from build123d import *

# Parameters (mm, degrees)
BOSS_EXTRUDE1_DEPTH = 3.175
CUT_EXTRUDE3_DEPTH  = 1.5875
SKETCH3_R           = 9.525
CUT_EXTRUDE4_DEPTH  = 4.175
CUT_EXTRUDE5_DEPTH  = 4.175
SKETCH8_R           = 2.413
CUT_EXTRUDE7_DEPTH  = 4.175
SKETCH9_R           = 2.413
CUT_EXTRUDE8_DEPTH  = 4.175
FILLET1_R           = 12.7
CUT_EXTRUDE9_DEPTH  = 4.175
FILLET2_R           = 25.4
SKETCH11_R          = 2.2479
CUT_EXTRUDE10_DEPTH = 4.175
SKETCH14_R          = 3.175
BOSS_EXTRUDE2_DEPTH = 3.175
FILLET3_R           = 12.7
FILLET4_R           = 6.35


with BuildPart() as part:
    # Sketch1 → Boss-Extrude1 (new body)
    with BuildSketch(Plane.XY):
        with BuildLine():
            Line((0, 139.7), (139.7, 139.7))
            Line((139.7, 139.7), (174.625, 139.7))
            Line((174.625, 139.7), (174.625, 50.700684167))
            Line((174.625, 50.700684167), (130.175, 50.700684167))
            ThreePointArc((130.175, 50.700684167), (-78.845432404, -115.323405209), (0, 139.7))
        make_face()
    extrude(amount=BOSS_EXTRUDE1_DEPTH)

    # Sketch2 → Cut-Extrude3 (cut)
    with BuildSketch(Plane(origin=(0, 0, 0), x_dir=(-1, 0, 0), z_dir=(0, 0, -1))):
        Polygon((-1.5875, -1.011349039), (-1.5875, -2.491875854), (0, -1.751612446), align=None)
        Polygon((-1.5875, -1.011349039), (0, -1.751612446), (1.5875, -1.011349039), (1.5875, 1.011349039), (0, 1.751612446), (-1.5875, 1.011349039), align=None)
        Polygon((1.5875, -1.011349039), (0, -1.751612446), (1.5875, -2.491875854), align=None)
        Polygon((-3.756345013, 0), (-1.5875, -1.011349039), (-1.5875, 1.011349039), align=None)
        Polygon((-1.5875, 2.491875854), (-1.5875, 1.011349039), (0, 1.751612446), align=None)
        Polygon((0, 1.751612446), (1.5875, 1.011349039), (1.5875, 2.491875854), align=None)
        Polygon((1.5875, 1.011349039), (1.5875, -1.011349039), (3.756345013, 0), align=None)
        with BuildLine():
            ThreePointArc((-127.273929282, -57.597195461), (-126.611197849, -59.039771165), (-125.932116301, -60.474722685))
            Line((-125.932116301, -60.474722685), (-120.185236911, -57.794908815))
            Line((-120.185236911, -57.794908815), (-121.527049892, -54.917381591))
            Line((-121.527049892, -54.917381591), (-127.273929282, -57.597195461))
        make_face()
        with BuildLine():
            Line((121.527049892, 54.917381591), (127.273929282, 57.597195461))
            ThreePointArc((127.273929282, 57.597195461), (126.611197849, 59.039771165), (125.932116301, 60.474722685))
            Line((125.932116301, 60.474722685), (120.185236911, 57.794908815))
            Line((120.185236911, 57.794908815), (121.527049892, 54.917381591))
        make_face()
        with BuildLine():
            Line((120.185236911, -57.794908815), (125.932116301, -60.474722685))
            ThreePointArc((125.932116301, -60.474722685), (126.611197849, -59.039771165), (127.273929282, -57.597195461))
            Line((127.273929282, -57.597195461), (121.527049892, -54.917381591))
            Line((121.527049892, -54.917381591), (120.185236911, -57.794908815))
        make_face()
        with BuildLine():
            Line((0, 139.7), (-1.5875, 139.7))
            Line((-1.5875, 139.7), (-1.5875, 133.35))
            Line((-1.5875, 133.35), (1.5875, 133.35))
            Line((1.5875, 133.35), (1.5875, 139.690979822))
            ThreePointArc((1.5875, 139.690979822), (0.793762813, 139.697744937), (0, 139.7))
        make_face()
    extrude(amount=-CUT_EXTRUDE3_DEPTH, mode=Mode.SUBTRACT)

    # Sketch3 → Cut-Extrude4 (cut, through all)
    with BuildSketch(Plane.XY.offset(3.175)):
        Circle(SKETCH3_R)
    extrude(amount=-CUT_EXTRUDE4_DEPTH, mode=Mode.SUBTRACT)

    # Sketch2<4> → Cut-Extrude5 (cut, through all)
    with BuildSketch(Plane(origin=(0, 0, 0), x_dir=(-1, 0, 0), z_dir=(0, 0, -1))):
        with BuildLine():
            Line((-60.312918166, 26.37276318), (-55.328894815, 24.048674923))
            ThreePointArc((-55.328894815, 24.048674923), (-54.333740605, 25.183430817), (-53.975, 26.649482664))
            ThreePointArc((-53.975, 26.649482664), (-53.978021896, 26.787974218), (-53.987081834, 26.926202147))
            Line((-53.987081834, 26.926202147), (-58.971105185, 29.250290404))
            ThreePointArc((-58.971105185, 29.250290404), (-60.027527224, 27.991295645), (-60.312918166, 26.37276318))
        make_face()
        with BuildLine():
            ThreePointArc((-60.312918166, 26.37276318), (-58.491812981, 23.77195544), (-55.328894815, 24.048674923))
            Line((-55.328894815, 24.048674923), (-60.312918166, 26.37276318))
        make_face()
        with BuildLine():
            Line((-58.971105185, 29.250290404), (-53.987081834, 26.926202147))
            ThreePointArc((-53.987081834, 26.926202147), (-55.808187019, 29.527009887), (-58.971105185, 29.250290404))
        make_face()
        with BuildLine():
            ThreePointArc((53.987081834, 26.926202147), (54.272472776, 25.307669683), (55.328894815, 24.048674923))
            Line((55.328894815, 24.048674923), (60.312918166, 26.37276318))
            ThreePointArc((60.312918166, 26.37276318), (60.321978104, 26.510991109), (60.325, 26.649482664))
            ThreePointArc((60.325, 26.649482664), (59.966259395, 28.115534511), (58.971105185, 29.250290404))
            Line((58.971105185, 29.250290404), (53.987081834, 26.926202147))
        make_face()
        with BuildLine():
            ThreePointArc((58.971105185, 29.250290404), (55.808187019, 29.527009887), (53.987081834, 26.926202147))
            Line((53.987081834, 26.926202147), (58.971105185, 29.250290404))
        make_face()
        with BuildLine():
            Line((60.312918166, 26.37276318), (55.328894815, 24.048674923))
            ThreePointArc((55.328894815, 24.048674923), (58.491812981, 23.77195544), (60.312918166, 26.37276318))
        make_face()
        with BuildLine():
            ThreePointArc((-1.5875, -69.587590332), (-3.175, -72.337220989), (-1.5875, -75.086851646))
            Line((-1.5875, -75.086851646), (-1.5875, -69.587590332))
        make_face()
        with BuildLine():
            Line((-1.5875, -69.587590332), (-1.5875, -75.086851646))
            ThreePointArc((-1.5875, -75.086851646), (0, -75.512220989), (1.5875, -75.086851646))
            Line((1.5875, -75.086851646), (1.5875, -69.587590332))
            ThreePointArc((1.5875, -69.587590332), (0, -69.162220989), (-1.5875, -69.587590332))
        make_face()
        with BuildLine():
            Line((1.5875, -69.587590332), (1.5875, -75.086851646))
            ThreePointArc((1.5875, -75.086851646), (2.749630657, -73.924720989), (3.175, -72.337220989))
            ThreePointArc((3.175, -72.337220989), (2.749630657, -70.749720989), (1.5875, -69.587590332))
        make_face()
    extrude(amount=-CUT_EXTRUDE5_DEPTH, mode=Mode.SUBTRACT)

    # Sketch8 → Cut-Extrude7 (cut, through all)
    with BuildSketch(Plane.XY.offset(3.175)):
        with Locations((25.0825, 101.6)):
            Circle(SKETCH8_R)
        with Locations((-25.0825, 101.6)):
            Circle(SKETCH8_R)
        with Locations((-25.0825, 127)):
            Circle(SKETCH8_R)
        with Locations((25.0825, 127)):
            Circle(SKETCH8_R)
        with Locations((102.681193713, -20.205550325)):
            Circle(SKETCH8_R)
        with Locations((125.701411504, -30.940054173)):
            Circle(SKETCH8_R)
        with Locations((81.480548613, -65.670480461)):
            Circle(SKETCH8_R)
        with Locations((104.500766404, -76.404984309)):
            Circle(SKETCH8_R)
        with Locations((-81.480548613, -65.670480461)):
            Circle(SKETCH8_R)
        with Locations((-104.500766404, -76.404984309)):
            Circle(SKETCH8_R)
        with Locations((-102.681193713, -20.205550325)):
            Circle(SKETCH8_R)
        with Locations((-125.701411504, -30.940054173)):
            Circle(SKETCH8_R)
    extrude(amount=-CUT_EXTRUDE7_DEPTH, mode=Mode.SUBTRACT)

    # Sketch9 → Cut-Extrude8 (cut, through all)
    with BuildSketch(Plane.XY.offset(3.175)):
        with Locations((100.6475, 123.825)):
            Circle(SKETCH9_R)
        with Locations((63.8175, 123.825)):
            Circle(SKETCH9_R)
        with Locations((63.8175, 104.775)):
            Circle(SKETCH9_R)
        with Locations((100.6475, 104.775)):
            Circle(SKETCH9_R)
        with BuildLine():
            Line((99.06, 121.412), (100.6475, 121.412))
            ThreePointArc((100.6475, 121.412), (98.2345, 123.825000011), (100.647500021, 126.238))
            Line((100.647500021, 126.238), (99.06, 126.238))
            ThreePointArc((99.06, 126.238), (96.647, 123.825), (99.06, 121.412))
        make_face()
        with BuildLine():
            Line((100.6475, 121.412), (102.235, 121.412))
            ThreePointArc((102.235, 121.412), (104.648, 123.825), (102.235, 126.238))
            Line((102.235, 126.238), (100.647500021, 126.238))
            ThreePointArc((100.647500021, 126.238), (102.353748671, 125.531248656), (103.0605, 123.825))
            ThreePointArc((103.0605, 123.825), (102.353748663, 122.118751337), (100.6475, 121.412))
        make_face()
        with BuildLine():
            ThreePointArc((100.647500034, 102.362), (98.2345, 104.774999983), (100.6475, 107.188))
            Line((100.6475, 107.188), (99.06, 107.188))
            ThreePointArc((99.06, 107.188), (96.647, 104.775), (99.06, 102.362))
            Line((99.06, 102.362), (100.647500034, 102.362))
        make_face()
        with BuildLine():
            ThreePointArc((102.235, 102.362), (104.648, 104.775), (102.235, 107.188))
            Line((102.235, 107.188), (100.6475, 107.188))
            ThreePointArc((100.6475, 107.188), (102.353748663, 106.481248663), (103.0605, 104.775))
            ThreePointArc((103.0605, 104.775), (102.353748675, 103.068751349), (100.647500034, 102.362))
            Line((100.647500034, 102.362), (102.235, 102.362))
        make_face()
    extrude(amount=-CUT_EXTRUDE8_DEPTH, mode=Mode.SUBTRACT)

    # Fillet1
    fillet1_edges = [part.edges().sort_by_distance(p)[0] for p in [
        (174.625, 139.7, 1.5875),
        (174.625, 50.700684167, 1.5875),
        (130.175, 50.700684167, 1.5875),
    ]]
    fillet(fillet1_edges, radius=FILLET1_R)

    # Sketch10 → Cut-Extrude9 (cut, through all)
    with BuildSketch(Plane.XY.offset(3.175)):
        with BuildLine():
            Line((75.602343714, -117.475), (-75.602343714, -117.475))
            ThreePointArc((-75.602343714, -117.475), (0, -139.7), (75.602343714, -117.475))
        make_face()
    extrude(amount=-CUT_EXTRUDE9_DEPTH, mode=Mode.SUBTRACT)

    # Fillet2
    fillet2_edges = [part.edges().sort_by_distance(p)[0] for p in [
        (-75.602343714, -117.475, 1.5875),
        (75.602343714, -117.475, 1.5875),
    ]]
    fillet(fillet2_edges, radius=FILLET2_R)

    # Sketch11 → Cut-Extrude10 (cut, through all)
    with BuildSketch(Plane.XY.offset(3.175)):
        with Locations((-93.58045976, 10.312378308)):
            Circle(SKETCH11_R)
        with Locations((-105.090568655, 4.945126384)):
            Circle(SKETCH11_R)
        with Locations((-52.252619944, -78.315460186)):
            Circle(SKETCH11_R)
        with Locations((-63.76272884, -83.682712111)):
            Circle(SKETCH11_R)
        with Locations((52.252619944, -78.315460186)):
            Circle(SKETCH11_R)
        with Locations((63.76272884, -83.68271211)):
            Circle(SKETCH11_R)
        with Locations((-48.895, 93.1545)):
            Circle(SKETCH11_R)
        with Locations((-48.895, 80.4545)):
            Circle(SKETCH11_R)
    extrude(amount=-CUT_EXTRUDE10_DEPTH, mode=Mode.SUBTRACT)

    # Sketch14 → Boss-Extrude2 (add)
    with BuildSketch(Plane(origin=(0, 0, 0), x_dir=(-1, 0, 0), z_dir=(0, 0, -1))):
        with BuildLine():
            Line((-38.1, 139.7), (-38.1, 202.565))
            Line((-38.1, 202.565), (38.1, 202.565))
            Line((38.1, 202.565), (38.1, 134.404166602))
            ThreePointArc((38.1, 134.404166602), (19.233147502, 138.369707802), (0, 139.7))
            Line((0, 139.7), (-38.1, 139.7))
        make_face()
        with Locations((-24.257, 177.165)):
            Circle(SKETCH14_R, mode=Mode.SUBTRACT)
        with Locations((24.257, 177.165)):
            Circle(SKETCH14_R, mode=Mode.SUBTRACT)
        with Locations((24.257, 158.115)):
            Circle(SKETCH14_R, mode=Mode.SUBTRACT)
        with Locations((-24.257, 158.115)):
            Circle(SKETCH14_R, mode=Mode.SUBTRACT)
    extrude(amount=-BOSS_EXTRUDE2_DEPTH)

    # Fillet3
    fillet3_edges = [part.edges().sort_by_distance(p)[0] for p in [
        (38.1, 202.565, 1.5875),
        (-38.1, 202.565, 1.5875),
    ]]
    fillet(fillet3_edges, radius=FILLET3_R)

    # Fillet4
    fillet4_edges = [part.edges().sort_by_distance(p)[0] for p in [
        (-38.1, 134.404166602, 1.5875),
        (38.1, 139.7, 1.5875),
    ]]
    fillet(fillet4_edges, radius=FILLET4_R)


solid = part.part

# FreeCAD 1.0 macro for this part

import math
import FreeCAD as App
import Part
import Sketcher
from FreeCAD import Vector
Q = App.Units.Quantity


def edges_at(feature, points):
    """Names of the edges that pass closest to the given points."""
    edges = feature.Shape.Edges
    near = lambda p: min(range(len(edges)), key=lambda i: edges[i].distToShape(Part.Vertex(*p))[0])
    return sorted({f"Edge{near(p) + 1}" for p in points})


def add_polygon(sketch, points):
    """Adds a closed chain of lines whose ends are joined by coincident constraints."""
    first, n = sketch.GeometryCount, len(points)
    for a, b in zip(points, points[1:] + points[:1]):
        sketch.addGeometry(Part.LineSegment(App.Vector(*a, 0), App.Vector(*b, 0)), False)
    for i in range(n):
        sketch.addConstraint(Sketcher.Constraint("Coincident", first + i, 2, first + (i + 1) % n, 1))

doc = App.newDocument("Part")
body = doc.addObject("PartDesign::Body", "Body")

sketch1 = body.newObject("Sketcher::SketchObject", "Sketch")
sketch1.AttachmentSupport = (doc.getObject("XY_Plane"), [""])
sketch1.MapMode = "FlatFace"
sketch1.addGeometry([
    Part.LineSegment(Vector(174.625, 139.7, 0), Vector(0, 139.7, 0)),
    Part.ArcOfCircle(Part.Circle(Vector(0, 0, 0), Vector(0, 0, 1), 139.7), math.radians(90), math.radians(381.279966)),
    Part.LineSegment(Vector(130.175, 50.700684, 0), Vector(174.625, 50.700684, 0)),
    Part.LineSegment(Vector(174.625, 50.700684, 0), Vector(174.625, 139.7, 0)),
], False)
sketch1.addConstraint([
    Sketcher.Constraint("Tangent", 0, 2, 1, 1),
    Sketcher.Constraint("Coincident", 1, 2, 2, 1),
    Sketcher.Constraint("Coincident", 2, 2, 3, 1),
    Sketcher.Constraint("Coincident", 3, 2, 0, 1),
    Sketcher.Constraint("Horizontal", 0),
    Sketcher.Constraint("Horizontal", 2),
    Sketcher.Constraint("Vertical", 3),
    Sketcher.Constraint("Coincident", 1, 3, -1, 1),
    Sketcher.Constraint("Radius", 1, Q("5.5 in")),
    Sketcher.Constraint("DistanceX", 2, 1, 2, 2, Q("1.75 in")),
    Sketcher.Constraint("DistanceX", 0, 2, 0, 1, Q("6.875 in")),
])
pad1 = body.newObject("PartDesign::Pad", "Pad")
pad1.Profile = sketch1
pad1.Length = Q("0.125 in")

sketch2 = body.newObject("Sketcher::SketchObject", "Sketch001")
sketch2.AttachmentSupport = (doc.getObject("XY_Plane"), [""])
sketch2.MapMode = "FlatFace"
add_polygon(sketch2, [(1.5875, -2.491876), (0, -1.751612), (-1.5875, -2.491876), (-1.5875, -1.011349), (-3.756345, 0), (-1.5875, 1.011349), (-1.5875, 2.491876), (0, 1.751612), (1.5875, 2.491876), (1.5875, 1.011349), (3.756345, 0), (1.5875, -1.011349)])
sketch2.addGeometry(Part.ArcOfCircle(Part.Circle(Vector(0.000006, -0.000003, 0), Vector(0, 0, 1), 139.699994), math.radians(-25.651102), math.radians(-24.348898)), False)
sketch2.addGeometry(Part.LineSegment(Vector(125.932116, -60.474723, 0), Vector(120.185237, -57.794909, 0)), False)
sketch2.addGeometry(Part.LineSegment(Vector(120.185237, -57.794909, 0), Vector(121.52705, -54.917382, 0)), False)
sketch2.addGeometry(Part.LineSegment(Vector(121.52705, -54.917382, 0), Vector(127.273929, -57.597195, 0)), False)
sketch2.addGeometry(Part.LineSegment(Vector(-121.52705, 54.917382, 0), Vector(-127.273929, 57.597195, 0)), False)
sketch2.addGeometry(Part.ArcOfCircle(Part.Circle(Vector(-0.000006, 0.000003, 0), Vector(0, 0, 1), 139.699994), math.radians(154.348898), math.radians(155.651102)), False)
sketch2.addGeometry(Part.LineSegment(Vector(-125.932116, 60.474723, 0), Vector(-120.185237, 57.794909, 0)), False)
sketch2.addGeometry(Part.LineSegment(Vector(-120.185237, 57.794909, 0), Vector(-121.52705, 54.917382, 0)), False)
sketch2.addGeometry(Part.LineSegment(Vector(-120.185237, -57.794909, 0), Vector(-125.932116, -60.474723, 0)), False)
sketch2.addGeometry(Part.ArcOfCircle(Part.Circle(Vector(-0.000006, -0.000003, 0), Vector(0, 0, 1), 139.699994), math.radians(-155.651102), math.radians(-154.348898)), False)
sketch2.addGeometry(Part.LineSegment(Vector(-127.273929, -57.597195, 0), Vector(-121.52705, -54.917382, 0)), False)
sketch2.addGeometry(Part.LineSegment(Vector(-121.52705, -54.917382, 0), Vector(-120.185237, -57.794909, 0)), False)
sketch2.addGeometry(Part.LineSegment(Vector(0, 139.7, 0), Vector(1.5875, 139.7, 0)), False)
sketch2.addGeometry(Part.LineSegment(Vector(1.5875, 139.7, 0), Vector(1.5875, 133.35, 0)), False)
sketch2.addGeometry(Part.LineSegment(Vector(1.5875, 133.35, 0), Vector(-1.5875, 133.35, 0)), False)
sketch2.addGeometry(Part.LineSegment(Vector(-1.5875, 133.35, 0), Vector(-1.5875, 139.69098, 0)), False)
sketch2.addGeometry(Part.ArcOfCircle(Part.Circle(Vector(0, -0.000012, 0), Vector(0, 0, 1), 139.700012), math.radians(90), math.radians(90.651102)), False)
sketch2.addConstraint([
    Sketcher.Constraint("Coincident", 12, 1, 13, 1),
    Sketcher.Constraint("Coincident", 13, 2, 14, 1),
    Sketcher.Constraint("Coincident", 14, 2, 15, 1),
    Sketcher.Constraint("Coincident", 15, 2, 12, 2),
    Sketcher.Constraint("Coincident", 16, 2, 17, 2),
    Sketcher.Constraint("Coincident", 17, 1, 18, 1),
    Sketcher.Constraint("Coincident", 18, 2, 19, 1),
    Sketcher.Constraint("Coincident", 19, 2, 16, 1),
    Sketcher.Constraint("Coincident", 20, 2, 21, 2),
    Sketcher.Constraint("Coincident", 21, 1, 22, 1),
    Sketcher.Constraint("Coincident", 22, 2, 23, 1),
    Sketcher.Constraint("Coincident", 23, 2, 20, 1),
    Sketcher.Constraint("Coincident", 24, 2, 25, 1),
    Sketcher.Constraint("Coincident", 25, 2, 26, 1),
    Sketcher.Constraint("Coincident", 26, 2, 27, 1),
    Sketcher.Constraint("Coincident", 27, 2, 28, 2),
    Sketcher.Constraint("Tangent", 28, 1, 24, 1),
    Sketcher.Constraint("Vertical", 2),
    Sketcher.Constraint("Vertical", 5),
    Sketcher.Constraint("Vertical", 8),
    Sketcher.Constraint("Vertical", 11),
    Sketcher.Constraint("Horizontal", 24),
    Sketcher.Constraint("Vertical", 25),
    Sketcher.Constraint("Horizontal", 26),
    Sketcher.Constraint("Vertical", 27),
    Sketcher.Constraint("Coincident", 12, 3, -1, 1),
    Sketcher.Constraint("Coincident", 17, 3, -1, 1),
    Sketcher.Constraint("Coincident", 21, 3, -1, 1),
    Sketcher.Constraint("Equal", 12, 17),
    Sketcher.Constraint("Equal", 17, 21),
    Sketcher.Constraint("Symmetric", 0, 2, 6, 2, -1, 1),
    Sketcher.Constraint("Symmetric", 1, 2, 7, 2, -1, 1),
    Sketcher.Constraint("Symmetric", 3, 2, 9, 2, -1, 1),
    Sketcher.Constraint("Symmetric", 4, 2, 10, 2, -1, 1),
    Sketcher.Constraint("Symmetric", 13, 2, 18, 2, -1, 1),
    Sketcher.Constraint("Symmetric", 14, 2, 19, 2, -1, 1),
    Sketcher.Constraint("Symmetric", 5, 2, 7, 2, -2),
    Sketcher.Constraint("Symmetric", 14, 2, 22, 2, -2),
    Sketcher.Constraint("Symmetric", 13, 2, 23, 2, -2),
    Sketcher.Constraint("PointOnObject", 28, 3, -2),
    Sketcher.Constraint("PointOnObject", 0, 2, -2),
    Sketcher.Constraint("PointOnObject", 3, 2, -1),
    Sketcher.Constraint("Parallel", 0, 3),
    Sketcher.Constraint("Parallel", 1, 4),
    Sketcher.Constraint("Parallel", 3, 6),
    Sketcher.Constraint("Parallel", 6, 9),
    Sketcher.Constraint("Parallel", 9, 13),
    Sketcher.Constraint("Perpendicular", 13, 14),
    Sketcher.Constraint("Perpendicular", 14, 15),
    Sketcher.Constraint("Parallel", 15, 16),
    Sketcher.Constraint("Parallel", 16, 18),
    Sketcher.Constraint("Parallel", 10, 20),
    Sketcher.Constraint("Parallel", 20, 22),
    Sketcher.Constraint("Vertical", 11, 2, 24, 2),
    Sketcher.Constraint("Vertical", 5, 2, 26, 2),
    Sketcher.Constraint("Equal", 13, 15),
    Sketcher.Constraint("Angle", 0, Q("155 deg")),
    Sketcher.Constraint("DistanceY", 25, 2, 25, 1, Q("0.25 in")),
    Sketcher.Constraint("DistanceY", -1, 1, 24, 2, Q("5.5 in")),
    Sketcher.Constraint("DistanceX", 24, 1, 24, 2, Q("0.0625 in")),
    Sketcher.Constraint("Distance", 14, Q("0.125 in")),
    Sketcher.Constraint("Radius", 28, Q("139.700012 mm")),
    Sketcher.Constraint("Radius", 12, Q("139.699994 mm")),
    Sketcher.Constraint("DistanceY", 0, 2, 28, 3, Q("1.751601 mm")),
    Sketcher.Constraint("DistanceY", 2, 2, 4, 2, Q("2.022698 mm")),
    Sketcher.Constraint("Distance", 13, Q("6.34098 mm")),
])
pocket1 = body.newObject("PartDesign::Pocket", "Pocket")
pocket1.Profile = sketch2
pocket1.Length = Q("0.0625 in")
pocket1.Reversed = True

sketch3 = body.newObject("Sketcher::SketchObject", "Sketch002")
sketch3.AttachmentSupport = (doc.getObject("XY_Plane"), [""])
sketch3.MapMode = "FlatFace"
sketch3.AttachmentOffset = App.Placement(Vector(0, 0, 0.125 * 25.4), App.Rotation())
sketch3.addGeometry(Part.Circle(Vector(0, 0, 0), Vector(0, 0, 1), 9.525), False)
sketch3.addConstraint([
    Sketcher.Constraint("Coincident", 0, 3, -1, 1),
    Sketcher.Constraint("Diameter", 0, Q("0.75 in")),
])
pocket2 = body.newObject("PartDesign::Pocket", "Pocket001")
pocket2.Profile = sketch3
pocket2.Type = "ThroughAll"

sketch4 = body.newObject("Sketcher::SketchObject", "Sketch003")
sketch4.AttachmentSupport = (doc.getObject("XY_Plane"), [""])
sketch4.MapMode = "FlatFace"
sketch4.addGeometry([
    Part.ArcOfCircle(Part.Circle(Vector(57.15, 26.649483, 0), Vector(0, 0, 1), 3.175), math.radians(-180), math.radians(-125)),
    Part.ArcOfCircle(Part.Circle(Vector(57.149999, 26.649483, 0), Vector(0, 0, 1), 3.174999), math.radians(174.999999), math.radians(180)),
    Part.ArcOfCircle(Part.Circle(Vector(57.15, 26.649483, 0), Vector(0, 0, 1), 3.175), math.radians(55), math.radians(175)),
    Part.ArcOfCircle(Part.Circle(Vector(57.15, 26.649483, 0), Vector(0, 0, 1), 3.175), math.radians(-5), math.radians(55)),
    Part.ArcOfCircle(Part.Circle(Vector(57.15, 26.649483, 0), Vector(0, 0, 1), 3.175), math.radians(-125), math.radians(-5)),
    Part.ArcOfCircle(Part.Circle(Vector(-57.15, 26.649483, 0), Vector(0, 0, 1), 3.175), math.radians(-55), math.radians(5)),
    Part.ArcOfCircle(Part.Circle(Vector(-57.15, 26.649483, 0), Vector(0, 0, 1), 3.175), math.radians(-175), math.radians(-55)),
    Part.ArcOfCircle(Part.Circle(Vector(-57.150001, 26.649483, 0), Vector(0, 0, 1), 3.174999), math.radians(180), math.radians(185.000001)),
    Part.ArcOfCircle(Part.Circle(Vector(-57.15, 26.649483, 0), Vector(0, 0, 1), 3.175), math.radians(125), math.radians(180)),
    Part.ArcOfCircle(Part.Circle(Vector(-57.15, 26.649483, 0), Vector(0, 0, 1), 3.175), math.radians(5), math.radians(125)),
    Part.ArcOfCircle(Part.Circle(Vector(0, -72.337221, 0), Vector(0, 0, 1), 3.175), math.radians(-60), math.radians(60)),
    Part.ArcOfCircle(Part.Circle(Vector(0, -72.337221, 0), Vector(0, 0, 1), 3.175), math.radians(-120), math.radians(-60)),
    Part.ArcOfCircle(Part.Circle(Vector(0, -72.337221, 0), Vector(0, 0, 1), 3.175), math.radians(180), math.radians(240)),
    Part.ArcOfCircle(Part.Circle(Vector(0, -72.337221, 0), Vector(0, 0, 1), 3.175), math.radians(120), math.radians(180)),
    Part.ArcOfCircle(Part.Circle(Vector(0, -72.337221, 0), Vector(0, 0, 1), 3.175), math.radians(60), math.radians(120)),
], False)
sketch4.addConstraint([
    Sketcher.Constraint("Tangent", 0, 1, 1, 2),
    Sketcher.Constraint("Tangent", 1, 1, 2, 2),
    Sketcher.Constraint("Tangent", 2, 1, 3, 2),
    Sketcher.Constraint("Tangent", 3, 1, 4, 2),
    Sketcher.Constraint("Tangent", 4, 1, 0, 2),
    Sketcher.Constraint("Tangent", 5, 1, 6, 2),
    Sketcher.Constraint("Tangent", 6, 1, 7, 2),
    Sketcher.Constraint("Tangent", 7, 1, 8, 2),
    Sketcher.Constraint("Tangent", 8, 1, 9, 2),
    Sketcher.Constraint("Tangent", 9, 1, 5, 2),
    Sketcher.Constraint("Tangent", 10, 1, 11, 2),
    Sketcher.Constraint("Tangent", 11, 1, 12, 2),
    Sketcher.Constraint("Tangent", 12, 1, 13, 2),
    Sketcher.Constraint("Tangent", 13, 1, 14, 2),
    Sketcher.Constraint("Tangent", 14, 1, 10, 2),
    Sketcher.Constraint("Coincident", 2, 3, 0, 3),
    Sketcher.Constraint("Coincident", 7, 3, 5, 3),
    Sketcher.Constraint("Coincident", 12, 3, 10, 3),
    Sketcher.Constraint("Equal", 4, 5),
    Sketcher.Constraint("Equal", 9, 10),
    Sketcher.Constraint("Symmetric", 0, 3, 5, 3, -2),
    Sketcher.Constraint("Symmetric", 10, 1, 11, 1, -2),
    Sketcher.Constraint("Horizontal", 9, 3, 0, 1),
    Sketcher.Constraint("Horizontal", 4, 1, 5, 1),
    Sketcher.Constraint("Horizontal", 3, 1, 6, 1),
    Sketcher.Constraint("Horizontal", 0, 1, 7, 1),
    Sketcher.Constraint("Horizontal", 2, 1, 8, 1),
    Sketcher.Constraint("Horizontal", 1, 1, 9, 1),
    Sketcher.Constraint("Horizontal", 14, 3, 12, 1),
    Sketcher.Constraint("Horizontal", 13, 1, 14, 1),
    Sketcher.Constraint("Vertical", 11, 1, 13, 1),
    Sketcher.Constraint("Radius", 0, Q("0.125 in")),
    Sketcher.Constraint("DistanceX", 5, 3, 1, 3, Q("4.5 in")),
    Sketcher.Constraint("DistanceX", -1, 1, 10, 1, Q("0.0625 in")),
    Sketcher.Constraint("DistanceY", 10, 3, -1, 1, Q("72.337221 mm")),
    Sketcher.Constraint("DistanceX", -1, 1, 1, 1, Q("53.987082 mm")),
    Sketcher.Constraint("DistanceY", -1, 1, 2, 1, Q("29.25029 mm")),
    Sketcher.Constraint("DistanceX", -1, 1, 3, 1, Q("60.312918 mm")),
    Sketcher.Constraint("DistanceY", -1, 1, 0, 3, Q("26.649483 mm")),
    Sketcher.Constraint("DistanceX", -1, 1, 4, 1, Q("55.328895 mm")),
])
pocket3 = body.newObject("PartDesign::Pocket", "Pocket002")
pocket3.Profile = sketch4
pocket3.Type = "ThroughAll"
pocket3.Reversed = True

sketch5 = body.newObject("Sketcher::SketchObject", "Sketch004")
sketch5.AttachmentSupport = (doc.getObject("XY_Plane"), [""])
sketch5.MapMode = "FlatFace"
sketch5.AttachmentOffset = App.Placement(Vector(0, 0, 0.125 * 25.4), App.Rotation())
sketch5.addGeometry([
    Part.Circle(Vector(25.0825, 101.6, 0), Vector(0, 0, 1), 2.413),
    Part.Circle(Vector(-25.0825, 101.6, 0), Vector(0, 0, 1), 2.413),
    Part.Circle(Vector(-25.0825, 127, 0), Vector(0, 0, 1), 2.413),
    Part.Circle(Vector(25.0825, 127, 0), Vector(0, 0, 1), 2.413),
    Part.Circle(Vector(102.681194, -20.20555, 0), Vector(0, 0, 1), 2.413),
    Part.Circle(Vector(125.701412, -30.940054, 0), Vector(0, 0, 1), 2.413),
    Part.Circle(Vector(81.480549, -65.67048, 0), Vector(0, 0, 1), 2.413),
    Part.Circle(Vector(104.500766, -76.404984, 0), Vector(0, 0, 1), 2.413),
    Part.Circle(Vector(-81.480549, -65.67048, 0), Vector(0, 0, 1), 2.413),
    Part.Circle(Vector(-104.500766, -76.404984, 0), Vector(0, 0, 1), 2.413),
    Part.Circle(Vector(-102.681194, -20.20555, 0), Vector(0, 0, 1), 2.413),
    Part.Circle(Vector(-125.701412, -30.940054, 0), Vector(0, 0, 1), 2.413),
], False)
sketch5.addConstraint([
    Sketcher.Constraint("Equal", 0, 1),
    Sketcher.Constraint("Equal", 1, 2),
    Sketcher.Constraint("Equal", 2, 3),
    Sketcher.Constraint("Equal", 3, 4),
    Sketcher.Constraint("Equal", 4, 5),
    Sketcher.Constraint("Equal", 5, 6),
    Sketcher.Constraint("Equal", 6, 7),
    Sketcher.Constraint("Equal", 7, 8),
    Sketcher.Constraint("Equal", 8, 9),
    Sketcher.Constraint("Equal", 9, 10),
    Sketcher.Constraint("Equal", 10, 11),
    Sketcher.Constraint("Symmetric", 0, 3, 1, 3, -2),
    Sketcher.Constraint("Symmetric", 2, 3, 3, 3, -2),
    Sketcher.Constraint("Symmetric", 6, 3, 8, 3, -2),
    Sketcher.Constraint("Symmetric", 7, 3, 9, 3, -2),
    Sketcher.Constraint("Symmetric", 4, 3, 10, 3, -2),
    Sketcher.Constraint("Symmetric", 5, 3, 11, 3, -2),
    Sketcher.Constraint("Vertical", 1, 3, 2, 3),
    Sketcher.Constraint("Diameter", 0, Q("0.19 in")),
    Sketcher.Constraint("DistanceY", -1, 1, 0, 3, Q("4 in")),
    Sketcher.Constraint("DistanceY", -1, 1, 2, 3, Q("5 in")),
    Sketcher.Constraint("DistanceX", 1, 3, 0, 3, Q("1.975 in")),
    Sketcher.Constraint("DistanceY", 4, 3, -1, 1, Q("20.20555 mm")),
    Sketcher.Constraint("DistanceX", -1, 1, 5, 3, Q("125.701412 mm")),
    Sketcher.Constraint("DistanceX", -1, 1, 6, 3, Q("81.480549 mm")),
    Sketcher.Constraint("DistanceY", 6, 3, -1, 1, Q("65.67048 mm")),
    Sketcher.Constraint("DistanceY", 7, 3, 5, 3, Q("45.46493 mm")),
    Sketcher.Constraint("DistanceX", 9, 3, 4, 3, Q("207.18196 mm")),
    Sketcher.Constraint("DistanceX", -1, 1, 4, 3, Q("102.681194 mm")),
    Sketcher.Constraint("DistanceY", 5, 3, -1, 1, Q("30.940054 mm")),
])
pocket4 = body.newObject("PartDesign::Pocket", "Pocket003")
pocket4.Profile = sketch5
pocket4.Type = "ThroughAll"

sketch6 = body.newObject("Sketcher::SketchObject", "Sketch005")
sketch6.AttachmentSupport = (doc.getObject("XY_Plane"), [""])
sketch6.MapMode = "FlatFace"
sketch6.AttachmentOffset = App.Placement(Vector(0, 0, 0.125 * 25.4), App.Rotation())
sketch6.addGeometry([
    Part.ArcOfCircle(Part.Circle(Vector(99.06, 123.825, 0), Vector(0, 0, 1), 2.413), math.radians(90), math.radians(270)),
    Part.LineSegment(Vector(99.06, 121.412, 0), Vector(102.235, 121.412, 0)),
    Part.ArcOfCircle(Part.Circle(Vector(102.235, 123.825, 0), Vector(0, 0, 1), 2.413), math.radians(-90), math.radians(90)),
    Part.LineSegment(Vector(102.235, 126.238, 0), Vector(99.06, 126.238, 0)),
    Part.Circle(Vector(63.8175, 123.825, 0), Vector(0, 0, 1), 2.413),
    Part.Circle(Vector(63.8175, 104.775, 0), Vector(0, 0, 1), 2.413),
    Part.ArcOfCircle(Part.Circle(Vector(99.06, 104.775, 0), Vector(0, 0, 1), 2.413), math.radians(90), math.radians(270)),
    Part.LineSegment(Vector(99.06, 102.362, 0), Vector(102.235, 102.362, 0)),
    Part.ArcOfCircle(Part.Circle(Vector(102.235, 104.775, 0), Vector(0, 0, 1), 2.413), math.radians(-90), math.radians(90)),
    Part.LineSegment(Vector(102.235, 107.188, 0), Vector(99.06, 107.188, 0)),
], False)
sketch6.addConstraint([
    Sketcher.Constraint("Tangent", 0, 2, 1, 1),
    Sketcher.Constraint("Tangent", 1, 2, 2, 1),
    Sketcher.Constraint("Tangent", 2, 2, 3, 1),
    Sketcher.Constraint("Tangent", 3, 2, 0, 1),
    Sketcher.Constraint("Tangent", 6, 2, 7, 1),
    Sketcher.Constraint("Tangent", 7, 2, 8, 1),
    Sketcher.Constraint("Tangent", 8, 2, 9, 1),
    Sketcher.Constraint("Tangent", 9, 2, 6, 1),
    Sketcher.Constraint("Horizontal", 1),
    Sketcher.Constraint("Horizontal", 3),
    Sketcher.Constraint("Horizontal", 7),
    Sketcher.Constraint("Horizontal", 9),
    Sketcher.Constraint("Equal", 2, 4),
    Sketcher.Constraint("Equal", 4, 5),
    Sketcher.Constraint("Equal", 5, 6),
    Sketcher.Constraint("Horizontal", 2, 3, 4, 3),
    Sketcher.Constraint("Horizontal", 5, 3, 6, 3),
    Sketcher.Constraint("Vertical", 4, 3, 5, 3),
    Sketcher.Constraint("Vertical", 0, 3, 6, 3),
    Sketcher.Constraint("Vertical", 2, 3, 8, 3),
    Sketcher.Constraint("Diameter", 4, Q("0.19 in")),
    Sketcher.Constraint("DistanceX", -1, 1, 0, 3, Q("3.9 in")),
    Sketcher.Constraint("DistanceX", 1, 1, 1, 2, Q("0.125 in")),
    Sketcher.Constraint("DistanceY", -1, 1, 0, 2, Q("4.78 in")),
    Sketcher.Constraint("DistanceY", -1, 1, 6, 2, Q("4.03 in")),
    Sketcher.Constraint("DistanceX", -1, 1, 4, 3, Q("2.5125 in")),
])
pocket5 = body.newObject("PartDesign::Pocket", "Pocket004")
pocket5.Profile = sketch6
pocket5.Type = "ThroughAll"
doc.recompute()

fillet = body.newObject("PartDesign::Fillet", "Fillet")
fillet.Base = (pocket5, edges_at(pocket5, [(174.625, 139.7, 1.587), (174.625, 50.701, 1.587), (130.175, 50.701, 1.587)]))
fillet.Radius = Q("0.5 in")

sketch7 = body.newObject("Sketcher::SketchObject", "Sketch006")
sketch7.AttachmentSupport = (doc.getObject("XY_Plane"), [""])
sketch7.MapMode = "FlatFace"
sketch7.AttachmentOffset = App.Placement(Vector(0, 0, 0.125 * 25.4), App.Rotation())
sketch7.addGeometry([
    Part.LineSegment(Vector(75.602344, -117.475, 0), Vector(-75.602344, -117.475, 0)),
    Part.ArcOfCircle(Part.Circle(Vector(0, 0, 0), Vector(0, 0, 1), 139.7), math.radians(-122.763758), math.radians(-57.236242)),
], False)
sketch7.addConstraint([
    Sketcher.Constraint("Coincident", 0, 1, 1, 2),
    Sketcher.Constraint("Coincident", 1, 1, 0, 2),
    Sketcher.Constraint("Horizontal", 0),
    Sketcher.Constraint("Coincident", 1, 3, -1, 1),
    Sketcher.Constraint("Radius", 1, Q("5.5 in")),
    Sketcher.Constraint("DistanceY", 0, 1, -1, 1, Q("4.625 in")),
])
pocket6 = body.newObject("PartDesign::Pocket", "Pocket005")
pocket6.Profile = sketch7
pocket6.Type = "ThroughAll"
doc.recompute()

fillet2 = body.newObject("PartDesign::Fillet", "Fillet001")
fillet2.Base = (pocket6, edges_at(pocket6, [(-75.602, -117.475, 1.587), (75.602, -117.475, 1.587)]))
fillet2.Radius = Q("1 in")

sketch8 = body.newObject("Sketcher::SketchObject", "Sketch007")
sketch8.AttachmentSupport = (doc.getObject("XY_Plane"), [""])
sketch8.MapMode = "FlatFace"
sketch8.AttachmentOffset = App.Placement(Vector(0, 0, 0.125 * 25.4), App.Rotation())
sketch8.addGeometry([
    Part.Circle(Vector(-93.58046, 10.312378, 0), Vector(0, 0, 1), 2.2479),
    Part.Circle(Vector(-105.090569, 4.945126, 0), Vector(0, 0, 1), 2.2479),
    Part.Circle(Vector(-52.25262, -78.31546, 0), Vector(0, 0, 1), 2.2479),
    Part.Circle(Vector(-63.762729, -83.682712, 0), Vector(0, 0, 1), 2.2479),
    Part.Circle(Vector(52.25262, -78.31546, 0), Vector(0, 0, 1), 2.2479),
    Part.Circle(Vector(63.762729, -83.682712, 0), Vector(0, 0, 1), 2.2479),
    Part.Circle(Vector(-48.895, 93.1545, 0), Vector(0, 0, 1), 2.2479),
    Part.Circle(Vector(-48.895, 80.4545, 0), Vector(0, 0, 1), 2.2479),
], False)
sketch8.addConstraint([
    Sketcher.Constraint("Equal", 0, 1),
    Sketcher.Constraint("Equal", 1, 2),
    Sketcher.Constraint("Equal", 2, 3),
    Sketcher.Constraint("Equal", 3, 4),
    Sketcher.Constraint("Equal", 4, 5),
    Sketcher.Constraint("Equal", 5, 6),
    Sketcher.Constraint("Equal", 6, 7),
    Sketcher.Constraint("Symmetric", 2, 3, 4, 3, -2),
    Sketcher.Constraint("Symmetric", 3, 3, 5, 3, -2),
    Sketcher.Constraint("Vertical", 6, 3, 7, 3),
    Sketcher.Constraint("Diameter", 0, Q("0.177 in")),
    Sketcher.Constraint("DistanceY", 7, 3, 6, 3, Q("0.5 in")),
    Sketcher.Constraint("DistanceX", 6, 3, -1, 1, Q("1.925 in")),
    Sketcher.Constraint("DistanceY", -1, 1, 6, 3, Q("3.6675 in")),
    Sketcher.Constraint("DistanceX", 0, 3, -1, 1, Q("93.58046 mm")),
    Sketcher.Constraint("DistanceY", -1, 1, 0, 3, Q("10.312378 mm")),
    Sketcher.Constraint("DistanceX", 1, 3, -1, 1, Q("105.090569 mm")),
    Sketcher.Constraint("DistanceX", 2, 3, -1, 1, Q("52.25262 mm")),
    Sketcher.Constraint("DistanceY", 2, 3, -1, 1, Q("78.31546 mm")),
    Sketcher.Constraint("DistanceX", 3, 3, -1, 1, Q("63.762729 mm")),
    Sketcher.Constraint("DistanceY", 1, 3, 0, 3, Q("5.367252 mm")),
    Sketcher.Constraint("DistanceY", 3, 3, 2, 3, Q("5.367252 mm")),
])
pocket7 = body.newObject("PartDesign::Pocket", "Pocket006")
pocket7.Profile = sketch8
pocket7.Type = "ThroughAll"

sketch9 = body.newObject("Sketcher::SketchObject", "Sketch008")
sketch9.AttachmentSupport = (doc.getObject("XY_Plane"), [""])
sketch9.MapMode = "FlatFace"
sketch9.addGeometry([
    Part.LineSegment(Vector(38.1, 202.565, 0), Vector(38.1, 139.7, 0)),
    Part.LineSegment(Vector(38.1, 139.7, 0), Vector(0, 139.7, 0)),
    Part.ArcOfCircle(Part.Circle(Vector(0, 0, 0), Vector(0, 0, 1), 139.7), math.radians(90), math.radians(105.82662)),
    Part.LineSegment(Vector(-38.1, 134.404167, 0), Vector(-38.1, 202.565, 0)),
    Part.LineSegment(Vector(-38.1, 202.565, 0), Vector(38.1, 202.565, 0)),
    Part.Circle(Vector(-24.257, 158.115, 0), Vector(0, 0, 1), 3.175),
    Part.Circle(Vector(24.257, 158.115, 0), Vector(0, 0, 1), 3.175),
    Part.Circle(Vector(-24.257, 177.165, 0), Vector(0, 0, 1), 3.175),
    Part.Circle(Vector(24.257, 177.165, 0), Vector(0, 0, 1), 3.175),
], False)
sketch9.addConstraint([
    Sketcher.Constraint("Coincident", 0, 2, 1, 1),
    Sketcher.Constraint("Tangent", 1, 2, 2, 1),
    Sketcher.Constraint("Coincident", 2, 2, 3, 1),
    Sketcher.Constraint("Coincident", 3, 2, 4, 1),
    Sketcher.Constraint("Coincident", 4, 2, 0, 1),
    Sketcher.Constraint("Vertical", 0),
    Sketcher.Constraint("Horizontal", 1),
    Sketcher.Constraint("Vertical", 3),
    Sketcher.Constraint("Horizontal", 4),
    Sketcher.Constraint("Coincident", 2, 3, -1, 1),
    Sketcher.Constraint("Equal", 5, 6),
    Sketcher.Constraint("Equal", 6, 7),
    Sketcher.Constraint("Equal", 7, 8),
    Sketcher.Constraint("Symmetric", 5, 3, 6, 3, -2),
    Sketcher.Constraint("Symmetric", 7, 3, 8, 3, -2),
    Sketcher.Constraint("Vertical", 5, 3, 7, 3),
    Sketcher.Constraint("Radius", 2, Q("5.5 in")),
    Sketcher.Constraint("Diameter", 5, Q("0.25 in")),
    Sketcher.Constraint("DistanceX", 4, 1, 4, 2, Q("3 in")),
    Sketcher.Constraint("DistanceX", 1, 2, 1, 1, Q("1.5 in")),
    Sketcher.Constraint("DistanceY", 7, 3, 3, 2, Q("1 in")),
    Sketcher.Constraint("DistanceY", 0, 2, 0, 1, Q("2.475 in")),
    Sketcher.Constraint("DistanceX", 5, 3, 6, 3, Q("1.91 in")),
    Sketcher.Constraint("DistanceY", 5, 3, 7, 3, Q("0.75 in")),
])
pad2 = body.newObject("PartDesign::Pad", "Pad001")
pad2.Profile = sketch9
pad2.Length = Q("0.125 in")
doc.recompute()

fillet3 = body.newObject("PartDesign::Fillet", "Fillet002")
fillet3.Base = (pad2, edges_at(pad2, [(38.1, 202.565, 1.587), (-38.1, 202.565, 1.587)]))
fillet3.Radius = Q("0.5 in")
doc.recompute()

fillet4 = body.newObject("PartDesign::Fillet", "Fillet003")
fillet4.Base = (fillet3, edges_at(fillet3, [(-38.1, 134.404, 1.587), (38.1, 139.7, 1.587)]))
fillet4.Radius = Q("0.25 in")

doc.recompute()
